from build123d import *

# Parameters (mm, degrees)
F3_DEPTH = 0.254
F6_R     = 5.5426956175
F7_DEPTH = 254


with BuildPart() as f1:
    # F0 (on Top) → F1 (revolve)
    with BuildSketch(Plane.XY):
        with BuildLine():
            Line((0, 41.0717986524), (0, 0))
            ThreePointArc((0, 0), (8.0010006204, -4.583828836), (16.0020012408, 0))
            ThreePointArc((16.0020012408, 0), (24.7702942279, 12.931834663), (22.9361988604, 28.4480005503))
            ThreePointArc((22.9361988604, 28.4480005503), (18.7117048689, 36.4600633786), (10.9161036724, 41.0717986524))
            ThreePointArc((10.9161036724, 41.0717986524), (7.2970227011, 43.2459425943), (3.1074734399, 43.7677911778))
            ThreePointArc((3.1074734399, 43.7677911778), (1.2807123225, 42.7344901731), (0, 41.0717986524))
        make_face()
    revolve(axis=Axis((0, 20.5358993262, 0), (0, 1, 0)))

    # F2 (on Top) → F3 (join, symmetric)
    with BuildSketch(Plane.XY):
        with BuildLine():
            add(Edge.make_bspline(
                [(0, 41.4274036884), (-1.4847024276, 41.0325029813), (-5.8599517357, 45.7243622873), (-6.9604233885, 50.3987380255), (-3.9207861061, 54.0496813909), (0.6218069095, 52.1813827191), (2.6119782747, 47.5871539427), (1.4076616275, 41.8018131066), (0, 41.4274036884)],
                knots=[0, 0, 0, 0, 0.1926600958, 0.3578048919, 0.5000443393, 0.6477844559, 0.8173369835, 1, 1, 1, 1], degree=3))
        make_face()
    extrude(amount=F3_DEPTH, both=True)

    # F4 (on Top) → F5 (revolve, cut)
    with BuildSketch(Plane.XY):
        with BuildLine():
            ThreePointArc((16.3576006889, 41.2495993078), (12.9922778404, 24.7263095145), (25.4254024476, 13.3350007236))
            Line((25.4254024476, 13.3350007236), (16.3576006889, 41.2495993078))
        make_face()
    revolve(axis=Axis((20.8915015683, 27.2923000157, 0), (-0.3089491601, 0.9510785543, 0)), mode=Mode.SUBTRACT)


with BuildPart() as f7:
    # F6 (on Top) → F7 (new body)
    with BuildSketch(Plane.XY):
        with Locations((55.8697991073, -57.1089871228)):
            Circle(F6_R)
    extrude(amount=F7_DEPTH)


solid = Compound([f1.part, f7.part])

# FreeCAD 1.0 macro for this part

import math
import FreeCAD as App
import Part
import Sketcher

V = App.Vector
Q = App.Units.Quantity

doc = App.newDocument("Part")
body = doc.addObject("PartDesign::Body", "Body")

# Sketch on XY plane
sketch1 = doc.addObject("Sketcher::SketchObject", "Sketch")
body.addObject(sketch1)
sketch1.AttachmentSupport = (doc.XY_Plane, [""])
sketch1.MapMode = "FlatFace"
sketch1.addGeometry(Part.LineSegment(V(0, 41.1, 0), V(0, 0, 0)), False)
sketch1.addGeometry(Part.ArcOfCircle(Part.Circle(V(8, 4.7, 0), V(0, 0, 1), 9.3), math.radians(-150), math.radians(-30)), False)
sketch1.addGeometry(Part.ArcOfCircle(Part.Circle(V(3, 18.2, 0), V(0, 0, 1), 22.4), math.radians(-55), math.radians(27)), False)
sketch1.addGeometry(Part.ArcOfCircle(Part.Circle(V(6.7, 25, 0), V(0, 0, 1), 16.6), math.radians(12), math.radians(75)), False)
sketch1.addGeometry(Part.ArcOfCircle(Part.Circle(V(4, 33.6, 0), V(0, 0, 1), 10.2), math.radians(47), math.radians(95)), False)
sketch1.addGeometry(Part.ArcOfCircle(Part.Circle(V(4.7, 38.7, 0), V(0, 0, 1), 5.3), math.radians(108), math.radians(154)), False)
sketch1.addConstraint(Sketcher.Constraint("Coincident", 0, 2, 1, 1))
sketch1.addConstraint(Sketcher.Constraint("Coincident", 1, 2, 2, 1))
sketch1.addConstraint(Sketcher.Constraint("Coincident", 2, 2, 3, 1))
sketch1.addConstraint(Sketcher.Constraint("Coincident", 3, 2, 4, 1))
sketch1.addConstraint(Sketcher.Constraint("Coincident", 4, 2, 5, 1))
sketch1.addConstraint(Sketcher.Constraint("Coincident", 5, 2, 0, 1))
sketch1.addConstraint(Sketcher.Constraint("Vertical", 0))
sketch1.addConstraint(Sketcher.Constraint("Coincident", 0, 2, -1, 1))
sketch1.addConstraint(Sketcher.Constraint("PointOnObject", 1, 2, -1))
sketch1.addConstraint(Sketcher.Constraint("Horizontal", 3, 2, 5, 2))
sketch1.addConstraint(Sketcher.Constraint("DistanceY", 0, 2, 0, 1, Q("1.6169999 in")))
sketch1.addConstraint(Sketcher.Constraint("DistanceX", -1, 1, 1, 2, Q("0.63 in")))
sketch1.addConstraint(Sketcher.Constraint("DistanceY", -1, 1, 2, 2, Q("1.12 in")))
sketch1.addConstraint(Sketcher.Constraint("DistanceX", -1, 1, 2, 2, Q("0.903 in")))
sketch1.addConstraint(Sketcher.Constraint("Radius", 2, Q("22.369612 mm")))
sketch1.addConstraint(Sketcher.Constraint("Radius", 4, Q("10.197151 mm")))
sketch1.addConstraint(Sketcher.Constraint("Radius", 1, Q("9.274724 mm")))
sketch1.addConstraint(Sketcher.Constraint("Radius", 3, Q("16.637404 mm")))
sketch1.addConstraint(Sketcher.Constraint("Radius", 5, Q("5.286264 mm")))
sketch1.addConstraint(Sketcher.Constraint("DistanceX", 4, 3, 5, 3, Q("0.7758 mm")))
sketch1.addConstraint(Sketcher.Constraint("DistanceX", 3, 3, 3, 2, Q("4.253399 mm")))
sketch1.addConstraint(Sketcher.Constraint("DistanceX", -1, 1, 4, 3, Q("3.969138 mm")))
revolution = doc.addObject("PartDesign::Revolution", "Revolution")
body.addObject(revolution)
revolution.Profile = sketch1
revolution.ReferenceAxis = (sketch1, ["V_Axis"])
revolution.Angle = 360

# Sketch on XY plane
sketch2 = doc.addObject("Sketcher::SketchObject", "Sketch001")
body.addObject(sketch2)
sketch2.AttachmentSupport = (doc.XY_Plane, [""])
sketch2.MapMode = "FlatFace"
sketch2.addGeometry(Part.BSplineCurve([V(0, 41.427404, 0), V(-1.484702, 41.032503, 0), V(-5.859952, 45.724362, 0), V(-6.960423, 50.398738, 0), V(-3.920786, 54.049681, 0), V(0.621807, 52.181383, 0), V(2.611978, 47.587154, 0), V(1.407662, 41.801813, 0), V(0, 41.427404, 0)], [4, 1, 1, 1, 1, 1, 4], [0, 0.192660096, 0.357804892, 0.500044339, 0.647784456, 0.817336983, 1], False, 3, [1, 1, 1, 1, 1, 1, 1, 1, 1], False), False)
sketch2.addConstraint(Sketcher.Constraint("Block", 0))
pad1 = doc.addObject("PartDesign::Pad", "Pad")
body.addObject(pad1)
pad1.Profile = sketch2
pad1.Length = Q("0.02 in")
pad1.Midplane = True

# Sketch on XY plane
sketch3 = doc.addObject("Sketcher::SketchObject", "Sketch002")
body.addObject(sketch3)
sketch3.AttachmentSupport = (doc.XY_Plane, [""])
sketch3.MapMode = "FlatFace"
sketch3.addGeometry(Part.ArcOfCircle(Part.Circle(V(29, 30, 0), V(0, 0, 1), 17), math.radians(139), math.radians(257)), False)
sketch3.addGeometry(Part.LineSegment(V(25, 13, 0), V(16, 41, 0)), False)
sketch3.addGeometry(Part.LineSegment(V(25, 13, 0), V(16, 41, 0)), True)  # axis
sketch3.addConstraint(Sketcher.Constraint("Coincident", 0, 1, 1, 2))
sketch3.addConstraint(Sketcher.Constraint("Coincident", 1, 1, 0, 2))
sketch3.addConstraint(Sketcher.Constraint("Coincident", 2, 1, 1, 1))
sketch3.addConstraint(Sketcher.Constraint("Coincident", 2, 2, 0, 1))
sketch3.addConstraint(Sketcher.Constraint("DistanceX", -1, 1, 0, 1, Q("0.644 in")))
sketch3.addConstraint(Sketcher.Constraint("DistanceY", -1, 1, 0, 1, Q("1.624 in")))
sketch3.addConstraint(Sketcher.Constraint("DistanceX", -1, 1, 1, 1, Q("1.0010001 in")))
sketch3.addConstraint(Sketcher.Constraint("DistanceY", -1, 1, 1, 1, Q("0.525 in")))
sketch3.addConstraint(Sketcher.Constraint("Radius", 0, Q("17.117755 mm")))
groove = doc.addObject("PartDesign::Groove", "Groove")
body.addObject(groove)
groove.Profile = sketch3
groove.ReferenceAxis = (sketch3, ["Axis0"])
groove.Angle = 360
body2 = doc.addObject("PartDesign::Body", "Body001")

# Sketch on XY plane
sketch4 = doc.addObject("Sketcher::SketchObject", "Sketch003")
body2.addObject(sketch4)
sketch4.AttachmentSupport = (doc.getObject("XY_Plane001"), [""])
sketch4.MapMode = "FlatFace"
sketch4.addGeometry(Part.Circle(V(56, -57, 0), V(0, 0, 1), 6), False)
sketch4.addConstraint(Sketcher.Constraint("Diameter", 0, Q("11.085391 mm")))
sketch4.addConstraint(Sketcher.Constraint("DistanceX", -1, 1, 0, 3, Q("55.869799 mm")))
sketch4.addConstraint(Sketcher.Constraint("DistanceY", 0, 3, -1, 1, Q("57.108987 mm")))
pad2 = doc.addObject("PartDesign::Pad", "Pad001")
body2.addObject(pad2)
pad2.Profile = sketch4
pad2.Length = Q("10 in")

doc.recompute()
